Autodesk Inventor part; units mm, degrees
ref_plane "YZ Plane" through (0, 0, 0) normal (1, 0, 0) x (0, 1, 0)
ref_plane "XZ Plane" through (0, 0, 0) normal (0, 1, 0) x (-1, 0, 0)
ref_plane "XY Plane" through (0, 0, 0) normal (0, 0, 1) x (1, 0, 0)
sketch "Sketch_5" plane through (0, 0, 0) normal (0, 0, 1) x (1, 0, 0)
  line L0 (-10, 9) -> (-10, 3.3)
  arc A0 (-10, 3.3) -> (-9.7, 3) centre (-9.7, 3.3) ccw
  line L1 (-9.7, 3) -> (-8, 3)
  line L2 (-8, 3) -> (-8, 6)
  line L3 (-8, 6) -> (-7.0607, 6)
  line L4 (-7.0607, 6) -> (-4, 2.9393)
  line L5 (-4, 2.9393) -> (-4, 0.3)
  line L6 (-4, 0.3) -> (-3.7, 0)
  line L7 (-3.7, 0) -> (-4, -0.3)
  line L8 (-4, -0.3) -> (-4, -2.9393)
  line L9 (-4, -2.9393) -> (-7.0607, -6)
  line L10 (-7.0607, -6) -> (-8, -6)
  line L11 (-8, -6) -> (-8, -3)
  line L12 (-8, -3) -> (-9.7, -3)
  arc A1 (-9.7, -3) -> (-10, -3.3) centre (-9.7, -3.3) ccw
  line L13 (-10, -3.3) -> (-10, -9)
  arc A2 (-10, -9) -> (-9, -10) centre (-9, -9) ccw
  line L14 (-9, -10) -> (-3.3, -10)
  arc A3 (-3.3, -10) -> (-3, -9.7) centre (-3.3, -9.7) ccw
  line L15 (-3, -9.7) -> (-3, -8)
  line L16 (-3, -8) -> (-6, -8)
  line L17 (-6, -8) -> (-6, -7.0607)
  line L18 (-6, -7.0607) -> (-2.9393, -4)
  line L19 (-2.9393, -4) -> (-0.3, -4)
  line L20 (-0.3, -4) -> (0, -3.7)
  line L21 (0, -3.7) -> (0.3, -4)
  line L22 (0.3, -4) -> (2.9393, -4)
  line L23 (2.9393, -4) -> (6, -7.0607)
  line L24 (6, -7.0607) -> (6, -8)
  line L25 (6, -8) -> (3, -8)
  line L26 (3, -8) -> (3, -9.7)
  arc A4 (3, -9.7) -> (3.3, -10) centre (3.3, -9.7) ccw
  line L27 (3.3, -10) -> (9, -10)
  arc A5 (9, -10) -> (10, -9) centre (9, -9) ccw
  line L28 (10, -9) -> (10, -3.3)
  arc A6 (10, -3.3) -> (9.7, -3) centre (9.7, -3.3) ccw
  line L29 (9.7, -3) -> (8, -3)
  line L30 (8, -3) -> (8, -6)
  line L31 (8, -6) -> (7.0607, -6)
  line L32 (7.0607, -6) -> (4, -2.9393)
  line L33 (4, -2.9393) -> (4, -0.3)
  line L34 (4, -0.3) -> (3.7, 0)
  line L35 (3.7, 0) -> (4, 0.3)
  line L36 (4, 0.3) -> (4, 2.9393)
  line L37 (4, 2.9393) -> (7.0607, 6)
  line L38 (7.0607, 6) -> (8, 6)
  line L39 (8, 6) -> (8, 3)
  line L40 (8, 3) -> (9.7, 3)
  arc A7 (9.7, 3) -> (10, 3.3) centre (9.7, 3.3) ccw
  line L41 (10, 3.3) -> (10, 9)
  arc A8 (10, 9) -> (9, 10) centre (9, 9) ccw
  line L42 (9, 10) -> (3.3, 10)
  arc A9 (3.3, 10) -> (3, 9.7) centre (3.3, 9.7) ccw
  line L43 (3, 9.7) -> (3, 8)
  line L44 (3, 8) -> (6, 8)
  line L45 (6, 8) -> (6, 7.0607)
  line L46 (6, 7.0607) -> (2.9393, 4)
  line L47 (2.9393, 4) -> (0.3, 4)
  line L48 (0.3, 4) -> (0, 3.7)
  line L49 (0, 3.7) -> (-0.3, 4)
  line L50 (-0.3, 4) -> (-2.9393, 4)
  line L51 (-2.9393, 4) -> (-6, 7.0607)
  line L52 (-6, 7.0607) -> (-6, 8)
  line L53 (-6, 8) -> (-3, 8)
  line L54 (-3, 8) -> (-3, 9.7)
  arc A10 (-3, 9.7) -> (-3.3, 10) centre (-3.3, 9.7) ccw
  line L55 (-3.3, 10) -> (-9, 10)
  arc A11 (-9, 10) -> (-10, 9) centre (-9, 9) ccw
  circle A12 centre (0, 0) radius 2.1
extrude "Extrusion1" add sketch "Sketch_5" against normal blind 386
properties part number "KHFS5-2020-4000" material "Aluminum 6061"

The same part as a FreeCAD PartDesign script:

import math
import FreeCAD as App
import Part
import Sketcher

doc = App.newDocument("Part")
body = doc.addObject("PartDesign::Body", "Body")

sketch1 = body.newObject("Sketcher::SketchObject", "Sketch")
sketch1.AttachmentSupport = (doc.getObject("XY_Plane"), [""])
sketch1.MapMode = "FlatFace"
sketch1.addGeometry(Part.ArcOfCircle(Part.Circle(App.Vector(-9, 9, 0), App.Vector(0, 0, 1), 1), math.radians(90), math.radians(180)), False)
sketch1.addGeometry(Part.LineSegment(App.Vector(-10, 9, 0), App.Vector(-10, 3.3, 0)), False)
sketch1.addGeometry(Part.ArcOfCircle(Part.Circle(App.Vector(-9.7, 3.3, 0), App.Vector(0, 0, 1), 0.3), math.radians(180), math.radians(270)), False)
sketch1.addGeometry(Part.LineSegment(App.Vector(-9.7, 3, 0), App.Vector(-8, 3, 0)), False)
sketch1.addGeometry(Part.LineSegment(App.Vector(-8, 3, 0), App.Vector(-8, 6, 0)), False)
sketch1.addGeometry(Part.LineSegment(App.Vector(-8, 6, 0), App.Vector(-7.06, 6, 0)), False)
sketch1.addGeometry(Part.LineSegment(App.Vector(-7.06, 6, 0), App.Vector(-4, 2.94, 0)), False)
sketch1.addGeometry(Part.LineSegment(App.Vector(-4, 2.94, 0), App.Vector(-4, 0.3, 0)), False)
sketch1.addGeometry(Part.LineSegment(App.Vector(-4, 0.3, 0), App.Vector(-3.7, 0, 0)), False)
sketch1.addGeometry(Part.LineSegment(App.Vector(-3.7, 0, 0), App.Vector(-4, -0.3, 0)), False)
sketch1.addGeometry(Part.LineSegment(App.Vector(-4, -0.3, 0), App.Vector(-4, -2.94, 0)), False)
sketch1.addGeometry(Part.LineSegment(App.Vector(-4, -2.94, 0), App.Vector(-7.06, -6, 0)), False)
sketch1.addGeometry(Part.LineSegment(App.Vector(-7.06, -6, 0), App.Vector(-8, -6, 0)), False)
sketch1.addGeometry(Part.LineSegment(App.Vector(-8, -6, 0), App.Vector(-8, -3, 0)), False)
sketch1.addGeometry(Part.LineSegment(App.Vector(-8, -3, 0), App.Vector(-9.7, -3, 0)), False)
sketch1.addGeometry(Part.ArcOfCircle(Part.Circle(App.Vector(-9.7, -3.3, 0), App.Vector(0, 0, 1), 0.3), math.radians(90), math.radians(180)), False)
sketch1.addGeometry(Part.LineSegment(App.Vector(-10, -3.3, 0), App.Vector(-10, -9, 0)), False)
sketch1.addGeometry(Part.ArcOfCircle(Part.Circle(App.Vector(-9, -9, 0), App.Vector(0, 0, 1), 1), math.radians(180), math.radians(270)), False)
sketch1.addGeometry(Part.LineSegment(App.Vector(-9, -10, 0), App.Vector(-3.3, -10, 0)), False)
sketch1.addGeometry(Part.ArcOfCircle(Part.Circle(App.Vector(-3.3, -9.7, 0), App.Vector(0, 0, 1), 0.3), math.radians(-90), math.radians(0)), False)
sketch1.addGeometry(Part.LineSegment(App.Vector(-3, -9.7, 0), App.Vector(-3, -8, 0)), False)
sketch1.addGeometry(Part.LineSegment(App.Vector(-3, -8, 0), App.Vector(-6, -8, 0)), False)
sketch1.addGeometry(Part.LineSegment(App.Vector(-6, -8, 0), App.Vector(-6, -7.06, 0)), False)
sketch1.addGeometry(Part.LineSegment(App.Vector(-6, -7.06, 0), App.Vector(-2.94, -4, 0)), False)
sketch1.addGeometry(Part.LineSegment(App.Vector(-2.94, -4, 0), App.Vector(-0.3, -4, 0)), False)
sketch1.addGeometry(Part.LineSegment(App.Vector(-0.3, -4, 0), App.Vector(0, -3.7, 0)), False)
sketch1.addGeometry(Part.LineSegment(App.Vector(0, -3.7, 0), App.Vector(0.3, -4, 0)), False)
sketch1.addGeometry(Part.LineSegment(App.Vector(0.3, -4, 0), App.Vector(2.94, -4, 0)), False)
sketch1.addGeometry(Part.LineSegment(App.Vector(2.94, -4, 0), App.Vector(6, -7.06, 0)), False)
sketch1.addGeometry(Part.LineSegment(App.Vector(6, -7.06, 0), App.Vector(6, -8, 0)), False)
sketch1.addGeometry(Part.LineSegment(App.Vector(6, -8, 0), App.Vector(3, -8, 0)), False)
sketch1.addGeometry(Part.LineSegment(App.Vector(3, -8, 0), App.Vector(3, -9.7, 0)), False)
sketch1.addGeometry(Part.ArcOfCircle(Part.Circle(App.Vector(3.3, -9.7, 0), App.Vector(0, 0, 1), 0.3), math.radians(180), math.radians(270)), False)
sketch1.addGeometry(Part.LineSegment(App.Vector(3.3, -10, 0), App.Vector(9, -10, 0)), False)
sketch1.addGeometry(Part.ArcOfCircle(Part.Circle(App.Vector(9, -9, 0), App.Vector(0, 0, 1), 1), math.radians(-90), math.radians(0)), False)
sketch1.addGeometry(Part.LineSegment(App.Vector(10, -9, 0), App.Vector(10, -3.3, 0)), False)
sketch1.addGeometry(Part.ArcOfCircle(Part.Circle(App.Vector(9.7, -3.3, 0), App.Vector(0, 0, 1), 0.3), math.radians(0), math.radians(90)), False)
sketch1.addGeometry(Part.LineSegment(App.Vector(9.7, -3, 0), App.Vector(8, -3, 0)), False)
sketch1.addGeometry(Part.LineSegment(App.Vector(8, -3, 0), App.Vector(8, -6, 0)), False)
sketch1.addGeometry(Part.LineSegment(App.Vector(8, -6, 0), App.Vector(7.06, -6, 0)), False)
sketch1.addGeometry(Part.LineSegment(App.Vector(7.06, -6, 0), App.Vector(4, -2.94, 0)), False)
sketch1.addGeometry(Part.LineSegment(App.Vector(4, -2.94, 0), App.Vector(4, -0.3, 0)), False)
sketch1.addGeometry(Part.LineSegment(App.Vector(4, -0.3, 0), App.Vector(3.7, 0, 0)), False)
sketch1.addGeometry(Part.LineSegment(App.Vector(3.7, 0, 0), App.Vector(4, 0.3, 0)), False)
sketch1.addGeometry(Part.LineSegment(App.Vector(4, 0.3, 0), App.Vector(4, 2.94, 0)), False)
sketch1.addGeometry(Part.LineSegment(App.Vector(4, 2.94, 0), App.Vector(7.06, 6, 0)), False)
sketch1.addGeometry(Part.LineSegment(App.Vector(7.06, 6, 0), App.Vector(8, 6, 0)), False)
sketch1.addGeometry(Part.LineSegment(App.Vector(8, 6, 0), App.Vector(8, 3, 0)), False)
sketch1.addGeometry(Part.LineSegment(App.Vector(8, 3, 0), App.Vector(9.7, 3, 0)), False)
sketch1.addGeometry(Part.ArcOfCircle(Part.Circle(App.Vector(9.7, 3.3, 0), App.Vector(0, 0, 1), 0.3), math.radians(-90), math.radians(0)), False)
sketch1.addGeometry(Part.LineSegment(App.Vector(10, 3.3, 0), App.Vector(10, 9, 0)), False)
sketch1.addGeometry(Part.ArcOfCircle(Part.Circle(App.Vector(9, 9, 0), App.Vector(0, 0, 1), 1), math.radians(0), math.radians(90)), False)
sketch1.addGeometry(Part.LineSegment(App.Vector(9, 10, 0), App.Vector(3.3, 10, 0)), False)
sketch1.addGeometry(Part.ArcOfCircle(Part.Circle(App.Vector(3.3, 9.7, 0), App.Vector(0, 0, 1), 0.3), math.radians(90), math.radians(180)), False)
sketch1.addGeometry(Part.LineSegment(App.Vector(3, 9.7, 0), App.Vector(3, 8, 0)), False)
sketch1.addGeometry(Part.LineSegment(App.Vector(3, 8, 0), App.Vector(6, 8, 0)), False)
sketch1.addGeometry(Part.LineSegment(App.Vector(6, 8, 0), App.Vector(6, 7.06, 0)), False)
sketch1.addGeometry(Part.LineSegment(App.Vector(6, 7.06, 0), App.Vector(2.94, 4, 0)), False)
sketch1.addGeometry(Part.LineSegment(App.Vector(2.94, 4, 0), App.Vector(0.3, 4, 0)), False)
sketch1.addGeometry(Part.LineSegment(App.Vector(0.3, 4, 0), App.Vector(0, 3.7, 0)), False)
sketch1.addGeometry(Part.LineSegment(App.Vector(0, 3.7, 0), App.Vector(-0.3, 4, 0)), False)
sketch1.addGeometry(Part.LineSegment(App.Vector(-0.3, 4, 0), App.Vector(-2.94, 4, 0)), False)
sketch1.addGeometry(Part.LineSegment(App.Vector(-2.94, 4, 0), App.Vector(-6, 7.06, 0)), False)
sketch1.addGeometry(Part.LineSegment(App.Vector(-6, 7.06, 0), App.Vector(-6, 8, 0)), False)
sketch1.addGeometry(Part.LineSegment(App.Vector(-6, 8, 0), App.Vector(-3, 8, 0)), False)
sketch1.addGeometry(Part.LineSegment(App.Vector(-3, 8, 0), App.Vector(-3, 9.7, 0)), False)
sketch1.addGeometry(Part.ArcOfCircle(Part.Circle(App.Vector(-3.3, 9.7, 0), App.Vector(0, 0, 1), 0.3), math.radians(0), math.radians(90)), False)
sketch1.addGeometry(Part.LineSegment(App.Vector(-3.3, 10, 0), App.Vector(-9, 10, 0)), False)
sketch1.addGeometry(Part.Circle(App.Vector(0, 0, 0), App.Vector(0, 0, 1), 2.1), False)
sketch1.addConstraint(Sketcher.Constraint("Tangent", 0, 2, 1, 1))
sketch1.addConstraint(Sketcher.Constraint("Tangent", 1, 2, 2, 1))
sketch1.addConstraint(Sketcher.Constraint("Tangent", 2, 2, 3, 1))
sketch1.addConstraint(Sketcher.Constraint("Coincident", 3, 2, 4, 1))
sketch1.addConstraint(Sketcher.Constraint("Coincident", 4, 2, 5, 1))
sketch1.addConstraint(Sketcher.Constraint("Coincident", 5, 2, 6, 1))
sketch1.addConstraint(Sketcher.Constraint("Coincident", 6, 2, 7, 1))
sketch1.addConstraint(Sketcher.Constraint("Coincident", 7, 2, 8, 1))
sketch1.addConstraint(Sketcher.Constraint("Coincident", 8, 2, 9, 1))
sketch1.addConstraint(Sketcher.Constraint("Coincident", 9, 2, 10, 1))
sketch1.addConstraint(Sketcher.Constraint("Coincident", 10, 2, 11, 1))
sketch1.addConstraint(Sketcher.Constraint("Coincident", 11, 2, 12, 1))
sketch1.addConstraint(Sketcher.Constraint("Coincident", 12, 2, 13, 1))
sketch1.addConstraint(Sketcher.Constraint("Coincident", 13, 2, 14, 1))
sketch1.addConstraint(Sketcher.Constraint("Tangent", 14, 2, 15, 1))
sketch1.addConstraint(Sketcher.Constraint("Tangent", 15, 2, 16, 1))
sketch1.addConstraint(Sketcher.Constraint("Tangent", 16, 2, 17, 1))
sketch1.addConstraint(Sketcher.Constraint("Tangent", 17, 2, 18, 1))
sketch1.addConstraint(Sketcher.Constraint("Tangent", 18, 2, 19, 1))
sketch1.addConstraint(Sketcher.Constraint("Tangent", 19, 2, 20, 1))
sketch1.addConstraint(Sketcher.Constraint("Coincident", 20, 2, 21, 1))
sketch1.addConstraint(Sketcher.Constraint("Coincident", 21, 2, 22, 1))
sketch1.addConstraint(Sketcher.Constraint("Coincident", 22, 2, 23, 1))
sketch1.addConstraint(Sketcher.Constraint("Coincident", 23, 2, 24, 1))
sketch1.addConstraint(Sketcher.Constraint("Coincident", 24, 2, 25, 1))
sketch1.addConstraint(Sketcher.Constraint("Coincident", 25, 2, 26, 1))
sketch1.addConstraint(Sketcher.Constraint("Coincident", 26, 2, 27, 1))
sketch1.addConstraint(Sketcher.Constraint("Coincident", 27, 2, 28, 1))
sketch1.addConstraint(Sketcher.Constraint("Coincident", 28, 2, 29, 1))
sketch1.addConstraint(Sketcher.Constraint("Coincident", 29, 2, 30, 1))
sketch1.addConstraint(Sketcher.Constraint("Coincident", 30, 2, 31, 1))
sketch1.addConstraint(Sketcher.Constraint("Tangent", 31, 2, 32, 1))
sketch1.addConstraint(Sketcher.Constraint("Tangent", 32, 2, 33, 1))
sketch1.addConstraint(Sketcher.Constraint("Tangent", 33, 2, 34, 1))
sketch1.addConstraint(Sketcher.Constraint("Tangent", 34, 2, 35, 1))
sketch1.addConstraint(Sketcher.Constraint("Tangent", 35, 2, 36, 1))
sketch1.addConstraint(Sketcher.Constraint("Tangent", 36, 2, 37, 1))
sketch1.addConstraint(Sketcher.Constraint("Coincident", 37, 2, 38, 1))
sketch1.addConstraint(Sketcher.Constraint("Coincident", 38, 2, 39, 1))
sketch1.addConstraint(Sketcher.Constraint("Coincident", 39, 2, 40, 1))
sketch1.addConstraint(Sketcher.Constraint("Coincident", 40, 2, 41, 1))
sketch1.addConstraint(Sketcher.Constraint("Coincident", 41, 2, 42, 1))
sketch1.addConstraint(Sketcher.Constraint("Coincident", 42, 2, 43, 1))
sketch1.addConstraint(Sketcher.Constraint("Coincident", 43, 2, 44, 1))
sketch1.addConstraint(Sketcher.Constraint("Coincident", 44, 2, 45, 1))
sketch1.addConstraint(Sketcher.Constraint("Coincident", 45, 2, 46, 1))
sketch1.addConstraint(Sketcher.Constraint("Coincident", 46, 2, 47, 1))
sketch1.addConstraint(Sketcher.Constraint("Coincident", 47, 2, 48, 1))
sketch1.addConstraint(Sketcher.Constraint("Tangent", 48, 2, 49, 1))
sketch1.addConstraint(Sketcher.Constraint("Tangent", 49, 2, 50, 1))
sketch1.addConstraint(Sketcher.Constraint("Tangent", 50, 2, 51, 1))
sketch1.addConstraint(Sketcher.Constraint("Tangent", 51, 2, 52, 1))
sketch1.addConstraint(Sketcher.Constraint("Tangent", 52, 2, 53, 1))
sketch1.addConstraint(Sketcher.Constraint("Tangent", 53, 2, 54, 1))
sketch1.addConstraint(Sketcher.Constraint("Coincident", 54, 2, 55, 1))
sketch1.addConstraint(Sketcher.Constraint("Coincident", 55, 2, 56, 1))
sketch1.addConstraint(Sketcher.Constraint("Coincident", 56, 2, 57, 1))
sketch1.addConstraint(Sketcher.Constraint("Coincident", 57, 2, 58, 1))
sketch1.addConstraint(Sketcher.Constraint("Coincident", 58, 2, 59, 1))
sketch1.addConstraint(Sketcher.Constraint("Coincident", 59, 2, 60, 1))
sketch1.addConstraint(Sketcher.Constraint("Coincident", 60, 2, 61, 1))
sketch1.addConstraint(Sketcher.Constraint("Coincident", 61, 2, 62, 1))
sketch1.addConstraint(Sketcher.Constraint("Coincident", 62, 2, 63, 1))
sketch1.addConstraint(Sketcher.Constraint("Coincident", 63, 2, 64, 1))
sketch1.addConstraint(Sketcher.Constraint("Coincident", 64, 2, 65, 1))
sketch1.addConstraint(Sketcher.Constraint("Tangent", 65, 2, 66, 1))
sketch1.addConstraint(Sketcher.Constraint("Tangent", 66, 2, 67, 1))
sketch1.addConstraint(Sketcher.Constraint("Tangent", 67, 2, 0, 1))
sketch1.addConstraint(Sketcher.Constraint("Vertical", 1))
sketch1.addConstraint(Sketcher.Constraint("Horizontal", 3))
sketch1.addConstraint(Sketcher.Constraint("Vertical", 4))
sketch1.addConstraint(Sketcher.Constraint("Horizontal", 5))
sketch1.addConstraint(Sketcher.Constraint("Vertical", 7))
sketch1.addConstraint(Sketcher.Constraint("Vertical", 10))
sketch1.addConstraint(Sketcher.Constraint("Horizontal", 12))
sketch1.addConstraint(Sketcher.Constraint("Vertical", 13))
sketch1.addConstraint(Sketcher.Constraint("Horizontal", 14))
sketch1.addConstraint(Sketcher.Constraint("Vertical", 16))
sketch1.addConstraint(Sketcher.Constraint("Horizontal", 18))
sketch1.addConstraint(Sketcher.Constraint("Vertical", 20))
sketch1.addConstraint(Sketcher.Constraint("Horizontal", 21))
sketch1.addConstraint(Sketcher.Constraint("Vertical", 22))
sketch1.addConstraint(Sketcher.Constraint("Horizontal", 24))
sketch1.addConstraint(Sketcher.Constraint("Horizontal", 27))
sketch1.addConstraint(Sketcher.Constraint("Vertical", 29))
sketch1.addConstraint(Sketcher.Constraint("Horizontal", 30))
sketch1.addConstraint(Sketcher.Constraint("Vertical", 31))
sketch1.addConstraint(Sketcher.Constraint("Horizontal", 33))
sketch1.addConstraint(Sketcher.Constraint("Vertical", 35))
sketch1.addConstraint(Sketcher.Constraint("Horizontal", 37))
sketch1.addConstraint(Sketcher.Constraint("Vertical", 38))
sketch1.addConstraint(Sketcher.Constraint("Horizontal", 39))
sketch1.addConstraint(Sketcher.Constraint("Vertical", 41))
sketch1.addConstraint(Sketcher.Constraint("Vertical", 44))
sketch1.addConstraint(Sketcher.Constraint("Horizontal", 46))
sketch1.addConstraint(Sketcher.Constraint("Vertical", 47))
sketch1.addConstraint(Sketcher.Constraint("Horizontal", 48))
sketch1.addConstraint(Sketcher.Constraint("Vertical", 50))
sketch1.addConstraint(Sketcher.Constraint("Horizontal", 52))
sketch1.addConstraint(Sketcher.Constraint("Vertical", 54))
sketch1.addConstraint(Sketcher.Constraint("Horizontal", 55))
sketch1.addConstraint(Sketcher.Constraint("Vertical", 56))
sketch1.addConstraint(Sketcher.Constraint("Horizontal", 58))
sketch1.addConstraint(Sketcher.Constraint("Horizontal", 61))
sketch1.addConstraint(Sketcher.Constraint("Vertical", 63))
sketch1.addConstraint(Sketcher.Constraint("Horizontal", 64))
sketch1.addConstraint(Sketcher.Constraint("Vertical", 65))
sketch1.addConstraint(Sketcher.Constraint("Horizontal", 67))
sketch1.addConstraint(Sketcher.Constraint("Coincident", 68, 3, -1, 1))
sketch1.addConstraint(Sketcher.Constraint("Equal", 2, 15))
sketch1.addConstraint(Sketcher.Constraint("Equal", 0, 17))
sketch1.addConstraint(Sketcher.Constraint("Equal", 15, 19))
sketch1.addConstraint(Sketcher.Constraint("Equal", 19, 32))
sketch1.addConstraint(Sketcher.Constraint("Equal", 17, 34))
sketch1.addConstraint(Sketcher.Constraint("Equal", 32, 36))
sketch1.addConstraint(Sketcher.Constraint("Equal", 36, 49))
sketch1.addConstraint(Sketcher.Constraint("Equal", 34, 51))
sketch1.addConstraint(Sketcher.Constraint("Equal", 49, 53))
sketch1.addConstraint(Sketcher.Constraint("Equal", 53, 66))
sketch1.addConstraint(Sketcher.Constraint("Symmetric", 0, 3, 34, 3, -1, 1))
sketch1.addConstraint(Sketcher.Constraint("Symmetric", 15, 3, 49, 3, -1, 1))
sketch1.addConstraint(Sketcher.Constraint("Symmetric", 19, 3, 53, 3, -1, 1))
sketch1.addConstraint(Sketcher.Constraint("Symmetric", 3, 2, 37, 2, -1, 1))
sketch1.addConstraint(Sketcher.Constraint("Symmetric", 5, 2, 39, 2, -1, 1))
sketch1.addConstraint(Sketcher.Constraint("Symmetric", 6, 2, 40, 2, -1, 1))
sketch1.addConstraint(Sketcher.Constraint("Symmetric", 8, 2, 42, 2, -1, 1))
sketch1.addConstraint(Sketcher.Constraint("Symmetric", 9, 2, 43, 2, -1, 1))
sketch1.addConstraint(Sketcher.Constraint("Symmetric", 11, 2, 45, 2, -1, 1))
sketch1.addConstraint(Sketcher.Constraint("Symmetric", 21, 2, 55, 2, -1, 1))
sketch1.addConstraint(Sketcher.Constraint("Symmetric", 23, 2, 57, 2, -1, 1))
sketch1.addConstraint(Sketcher.Constraint("Symmetric", 25, 2, 59, 2, -1, 1))
sketch1.addConstraint(Sketcher.Constraint("Symmetric", 26, 2, 60, 2, -1, 1))
sketch1.addConstraint(Sketcher.Constraint("Symmetric", 28, 2, 62, 2, -1, 1))
sketch1.addConstraint(Sketcher.Constraint("Symmetric", 30, 2, 64, 2, -1, 1))
sketch1.addConstraint(Sketcher.Constraint("Symmetric", 19, 3, 32, 3, -2))
sketch1.addConstraint(Sketcher.Constraint("Symmetric", 15, 3, 36, 3, -2))
sketch1.addConstraint(Sketcher.Constraint("Symmetric", 24, 2, 26, 2, -2))
sketch1.addConstraint(Sketcher.Constraint("Symmetric", 22, 2, 28, 2, -2))
sketch1.addConstraint(Sketcher.Constraint("Symmetric", 12, 2, 38, 2, -2))
sketch1.addConstraint(Sketcher.Constraint("Symmetric", 10, 2, 40, 2, -2))
sketch1.addConstraint(Sketcher.Constraint("PointOnObject", 8, 2, -1))
sketch1.addConstraint(Sketcher.Constraint("PointOnObject", 25, 2, -2))
sketch1.addConstraint(Sketcher.Constraint("Parallel", 6, 8))
sketch1.addConstraint(Sketcher.Constraint("Perpendicular", 8, 9))
sketch1.addConstraint(Sketcher.Constraint("Parallel", 9, 11))
sketch1.addConstraint(Sketcher.Constraint("Parallel", 11, 23))
sketch1.addConstraint(Sketcher.Constraint("Parallel", 23, 25))
sketch1.addConstraint(Sketcher.Constraint("Perpendicular", 25, 26))
sketch1.addConstraint(Sketcher.Constraint("Parallel", 26, 28))
sketch1.addConstraint(Sketcher.Constraint("Parallel", 40, 42))
sketch1.addConstraint(Sketcher.Constraint("Parallel", 43, 45))
sketch1.addConstraint(Sketcher.Constraint("Parallel", 45, 57))
sketch1.addConstraint(Sketcher.Constraint("Parallel", 57, 59))
sketch1.addConstraint(Sketcher.Constraint("Parallel", 60, 62))
sketch1.addConstraint(Sketcher.Constraint("Horizontal", 21, 2, 29, 2))
sketch1.addConstraint(Sketcher.Constraint("Vertical", 38, 2, 46, 2))
sketch1.addConstraint(Sketcher.Constraint("Equal", 67, 1))
sketch1.addConstraint(Sketcher.Constraint("Equal", 64, 4))
sketch1.addConstraint(Sketcher.Constraint("Equal", 61, 7))
sketch1.addConstraint(Sketcher.Constraint("Equal", 48, 20))
sketch1.addConstraint(Sketcher.Constraint("Equal", 46, 22))
sketch1.addConstraint(Sketcher.Constraint("Equal", 11, 23))
sketch1.addConstraint(Sketcher.Constraint("Equal", 9, 25))
sketch1.addConstraint(Sketcher.Constraint("Radius", 0, 1.0))
sketch1.addConstraint(Sketcher.Constraint("Diameter", 68, 4.2))
sketch1.addConstraint(Sketcher.Constraint("Radius", 2, 0.3))
sketch1.addConstraint(Sketcher.Constraint("DistanceX", 21, 2, 21, 1, 3.0))
sketch1.addConstraint(Sketcher.Constraint("DistanceX", 3, 1, 3, 2, 1.7))
sketch1.addConstraint(Sketcher.Constraint("DistanceX", 18, 1, 18, 2, 5.7))
sketch1.addConstraint(Sketcher.Constraint("DistanceX", 0, 3, -1, 1, 9.0))
sketch1.addConstraint(Sketcher.Constraint("DistanceX", 6, 2, -1, 1, 4.0))
sketch1.addConstraint(Sketcher.Constraint("DistanceY", -1, 1, 7, 2, 0.3))
sketch1.addConstraint(Sketcher.Constraint("DistanceX", 5, 1, 5, 2, 0.9393))
pad1 = body.newObject("PartDesign::Pad", "Pad")
pad1.Profile = sketch1
pad1.Length = 386
pad1.Reversed = True

doc.recompute()
